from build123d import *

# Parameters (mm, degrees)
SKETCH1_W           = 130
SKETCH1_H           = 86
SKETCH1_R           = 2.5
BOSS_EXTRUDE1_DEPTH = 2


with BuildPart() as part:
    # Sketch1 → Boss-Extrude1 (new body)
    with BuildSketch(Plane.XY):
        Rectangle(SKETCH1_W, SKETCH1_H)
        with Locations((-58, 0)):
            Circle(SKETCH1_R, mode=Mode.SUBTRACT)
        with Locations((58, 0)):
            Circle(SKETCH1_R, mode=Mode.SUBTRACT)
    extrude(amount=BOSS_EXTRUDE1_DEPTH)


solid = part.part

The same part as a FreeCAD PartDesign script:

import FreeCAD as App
import Part
import Sketcher
from FreeCAD import Vector
Q = App.Units.Quantity


def add_polygon(sketch, points):
    """Adds a closed chain of lines whose ends are joined by coincident constraints."""
    first, n = sketch.GeometryCount, len(points)
    for a, b in zip(points, points[1:] + points[:1]):
        sketch.addGeometry(Part.LineSegment(App.Vector(*a, 0), App.Vector(*b, 0)), False)
    for i in range(n):
        sketch.addConstraint(Sketcher.Constraint("Coincident", first + i, 2, first + (i + 1) % n, 1))

doc = App.newDocument("Part")
params = doc.addObject("Spreadsheet::Sheet", "Params")
for row, (alias, value) in enumerate([
    ("sketch1_diameter", "5 mm"),
    ("sketch1_width", "130 mm"),
    ("sketch1_height", "86 mm"),
    ("pad1_length", "2 mm"),
], start=1):
    params.set(f"A{row}", alias)
    params.set(f"B{row}", "=" + value)
    params.setAlias(f"B{row}", alias)

body = doc.addObject("PartDesign::Body", "Body")

# Sketch on XY plane
sketch1 = body.newObject("Sketcher::SketchObject", "Sketch")
sketch1.AttachmentSupport = (doc.getObject("XY_Plane"), [""])
sketch1.MapMode = "FlatFace"
add_polygon(sketch1, [(-65, 43), (-65, -43), (65, -43), (65, 43)])  # lines 0-3
sketch1.addGeometry(Part.Circle(Vector(-58, 0, 0), Vector(0, 0, 1), 2.5), False)  # 4
sketch1.addGeometry(Part.Circle(Vector(58, 0, 0), Vector(0, 0, 1), 2.5), False)  # 5
sketch1.addConstraint([
    Sketcher.Constraint("Vertical", 0),
    Sketcher.Constraint("Horizontal", 1),
    Sketcher.Constraint("Vertical", 2),
    Sketcher.Constraint("Horizontal", 3),
    Sketcher.Constraint("Equal", 4, 5),
    Sketcher.Constraint("Symmetric", 4, 3, 5, 3, -1, 1),
    Sketcher.Constraint("Symmetric", 0, 2, 2, 2, -1, 1),
    Sketcher.Constraint("PointOnObject", 4, 3, -1),
    Sketcher.Constraint("Diameter", 4, Q("5 mm")),
    Sketcher.Constraint("DistanceX", 1, 1, 1, 2, Q("130 mm")),
    Sketcher.Constraint("DistanceY", 0, 2, 0, 1, Q("86 mm")),
    Sketcher.Constraint("DistanceX", 4, 3, -1, 1, Q("58 mm")),
])
sketch1.setExpression("Constraints[12]", "Params.sketch1_diameter")
sketch1.setExpression("Constraints[13]", "Params.sketch1_width")
sketch1.setExpression("Constraints[14]", "Params.sketch1_height")
pad1 = body.newObject("PartDesign::Pad", "Pad")
pad1.Profile = sketch1
pad1.setExpression("Length", "Params.pad1_length")

doc.recompute()
